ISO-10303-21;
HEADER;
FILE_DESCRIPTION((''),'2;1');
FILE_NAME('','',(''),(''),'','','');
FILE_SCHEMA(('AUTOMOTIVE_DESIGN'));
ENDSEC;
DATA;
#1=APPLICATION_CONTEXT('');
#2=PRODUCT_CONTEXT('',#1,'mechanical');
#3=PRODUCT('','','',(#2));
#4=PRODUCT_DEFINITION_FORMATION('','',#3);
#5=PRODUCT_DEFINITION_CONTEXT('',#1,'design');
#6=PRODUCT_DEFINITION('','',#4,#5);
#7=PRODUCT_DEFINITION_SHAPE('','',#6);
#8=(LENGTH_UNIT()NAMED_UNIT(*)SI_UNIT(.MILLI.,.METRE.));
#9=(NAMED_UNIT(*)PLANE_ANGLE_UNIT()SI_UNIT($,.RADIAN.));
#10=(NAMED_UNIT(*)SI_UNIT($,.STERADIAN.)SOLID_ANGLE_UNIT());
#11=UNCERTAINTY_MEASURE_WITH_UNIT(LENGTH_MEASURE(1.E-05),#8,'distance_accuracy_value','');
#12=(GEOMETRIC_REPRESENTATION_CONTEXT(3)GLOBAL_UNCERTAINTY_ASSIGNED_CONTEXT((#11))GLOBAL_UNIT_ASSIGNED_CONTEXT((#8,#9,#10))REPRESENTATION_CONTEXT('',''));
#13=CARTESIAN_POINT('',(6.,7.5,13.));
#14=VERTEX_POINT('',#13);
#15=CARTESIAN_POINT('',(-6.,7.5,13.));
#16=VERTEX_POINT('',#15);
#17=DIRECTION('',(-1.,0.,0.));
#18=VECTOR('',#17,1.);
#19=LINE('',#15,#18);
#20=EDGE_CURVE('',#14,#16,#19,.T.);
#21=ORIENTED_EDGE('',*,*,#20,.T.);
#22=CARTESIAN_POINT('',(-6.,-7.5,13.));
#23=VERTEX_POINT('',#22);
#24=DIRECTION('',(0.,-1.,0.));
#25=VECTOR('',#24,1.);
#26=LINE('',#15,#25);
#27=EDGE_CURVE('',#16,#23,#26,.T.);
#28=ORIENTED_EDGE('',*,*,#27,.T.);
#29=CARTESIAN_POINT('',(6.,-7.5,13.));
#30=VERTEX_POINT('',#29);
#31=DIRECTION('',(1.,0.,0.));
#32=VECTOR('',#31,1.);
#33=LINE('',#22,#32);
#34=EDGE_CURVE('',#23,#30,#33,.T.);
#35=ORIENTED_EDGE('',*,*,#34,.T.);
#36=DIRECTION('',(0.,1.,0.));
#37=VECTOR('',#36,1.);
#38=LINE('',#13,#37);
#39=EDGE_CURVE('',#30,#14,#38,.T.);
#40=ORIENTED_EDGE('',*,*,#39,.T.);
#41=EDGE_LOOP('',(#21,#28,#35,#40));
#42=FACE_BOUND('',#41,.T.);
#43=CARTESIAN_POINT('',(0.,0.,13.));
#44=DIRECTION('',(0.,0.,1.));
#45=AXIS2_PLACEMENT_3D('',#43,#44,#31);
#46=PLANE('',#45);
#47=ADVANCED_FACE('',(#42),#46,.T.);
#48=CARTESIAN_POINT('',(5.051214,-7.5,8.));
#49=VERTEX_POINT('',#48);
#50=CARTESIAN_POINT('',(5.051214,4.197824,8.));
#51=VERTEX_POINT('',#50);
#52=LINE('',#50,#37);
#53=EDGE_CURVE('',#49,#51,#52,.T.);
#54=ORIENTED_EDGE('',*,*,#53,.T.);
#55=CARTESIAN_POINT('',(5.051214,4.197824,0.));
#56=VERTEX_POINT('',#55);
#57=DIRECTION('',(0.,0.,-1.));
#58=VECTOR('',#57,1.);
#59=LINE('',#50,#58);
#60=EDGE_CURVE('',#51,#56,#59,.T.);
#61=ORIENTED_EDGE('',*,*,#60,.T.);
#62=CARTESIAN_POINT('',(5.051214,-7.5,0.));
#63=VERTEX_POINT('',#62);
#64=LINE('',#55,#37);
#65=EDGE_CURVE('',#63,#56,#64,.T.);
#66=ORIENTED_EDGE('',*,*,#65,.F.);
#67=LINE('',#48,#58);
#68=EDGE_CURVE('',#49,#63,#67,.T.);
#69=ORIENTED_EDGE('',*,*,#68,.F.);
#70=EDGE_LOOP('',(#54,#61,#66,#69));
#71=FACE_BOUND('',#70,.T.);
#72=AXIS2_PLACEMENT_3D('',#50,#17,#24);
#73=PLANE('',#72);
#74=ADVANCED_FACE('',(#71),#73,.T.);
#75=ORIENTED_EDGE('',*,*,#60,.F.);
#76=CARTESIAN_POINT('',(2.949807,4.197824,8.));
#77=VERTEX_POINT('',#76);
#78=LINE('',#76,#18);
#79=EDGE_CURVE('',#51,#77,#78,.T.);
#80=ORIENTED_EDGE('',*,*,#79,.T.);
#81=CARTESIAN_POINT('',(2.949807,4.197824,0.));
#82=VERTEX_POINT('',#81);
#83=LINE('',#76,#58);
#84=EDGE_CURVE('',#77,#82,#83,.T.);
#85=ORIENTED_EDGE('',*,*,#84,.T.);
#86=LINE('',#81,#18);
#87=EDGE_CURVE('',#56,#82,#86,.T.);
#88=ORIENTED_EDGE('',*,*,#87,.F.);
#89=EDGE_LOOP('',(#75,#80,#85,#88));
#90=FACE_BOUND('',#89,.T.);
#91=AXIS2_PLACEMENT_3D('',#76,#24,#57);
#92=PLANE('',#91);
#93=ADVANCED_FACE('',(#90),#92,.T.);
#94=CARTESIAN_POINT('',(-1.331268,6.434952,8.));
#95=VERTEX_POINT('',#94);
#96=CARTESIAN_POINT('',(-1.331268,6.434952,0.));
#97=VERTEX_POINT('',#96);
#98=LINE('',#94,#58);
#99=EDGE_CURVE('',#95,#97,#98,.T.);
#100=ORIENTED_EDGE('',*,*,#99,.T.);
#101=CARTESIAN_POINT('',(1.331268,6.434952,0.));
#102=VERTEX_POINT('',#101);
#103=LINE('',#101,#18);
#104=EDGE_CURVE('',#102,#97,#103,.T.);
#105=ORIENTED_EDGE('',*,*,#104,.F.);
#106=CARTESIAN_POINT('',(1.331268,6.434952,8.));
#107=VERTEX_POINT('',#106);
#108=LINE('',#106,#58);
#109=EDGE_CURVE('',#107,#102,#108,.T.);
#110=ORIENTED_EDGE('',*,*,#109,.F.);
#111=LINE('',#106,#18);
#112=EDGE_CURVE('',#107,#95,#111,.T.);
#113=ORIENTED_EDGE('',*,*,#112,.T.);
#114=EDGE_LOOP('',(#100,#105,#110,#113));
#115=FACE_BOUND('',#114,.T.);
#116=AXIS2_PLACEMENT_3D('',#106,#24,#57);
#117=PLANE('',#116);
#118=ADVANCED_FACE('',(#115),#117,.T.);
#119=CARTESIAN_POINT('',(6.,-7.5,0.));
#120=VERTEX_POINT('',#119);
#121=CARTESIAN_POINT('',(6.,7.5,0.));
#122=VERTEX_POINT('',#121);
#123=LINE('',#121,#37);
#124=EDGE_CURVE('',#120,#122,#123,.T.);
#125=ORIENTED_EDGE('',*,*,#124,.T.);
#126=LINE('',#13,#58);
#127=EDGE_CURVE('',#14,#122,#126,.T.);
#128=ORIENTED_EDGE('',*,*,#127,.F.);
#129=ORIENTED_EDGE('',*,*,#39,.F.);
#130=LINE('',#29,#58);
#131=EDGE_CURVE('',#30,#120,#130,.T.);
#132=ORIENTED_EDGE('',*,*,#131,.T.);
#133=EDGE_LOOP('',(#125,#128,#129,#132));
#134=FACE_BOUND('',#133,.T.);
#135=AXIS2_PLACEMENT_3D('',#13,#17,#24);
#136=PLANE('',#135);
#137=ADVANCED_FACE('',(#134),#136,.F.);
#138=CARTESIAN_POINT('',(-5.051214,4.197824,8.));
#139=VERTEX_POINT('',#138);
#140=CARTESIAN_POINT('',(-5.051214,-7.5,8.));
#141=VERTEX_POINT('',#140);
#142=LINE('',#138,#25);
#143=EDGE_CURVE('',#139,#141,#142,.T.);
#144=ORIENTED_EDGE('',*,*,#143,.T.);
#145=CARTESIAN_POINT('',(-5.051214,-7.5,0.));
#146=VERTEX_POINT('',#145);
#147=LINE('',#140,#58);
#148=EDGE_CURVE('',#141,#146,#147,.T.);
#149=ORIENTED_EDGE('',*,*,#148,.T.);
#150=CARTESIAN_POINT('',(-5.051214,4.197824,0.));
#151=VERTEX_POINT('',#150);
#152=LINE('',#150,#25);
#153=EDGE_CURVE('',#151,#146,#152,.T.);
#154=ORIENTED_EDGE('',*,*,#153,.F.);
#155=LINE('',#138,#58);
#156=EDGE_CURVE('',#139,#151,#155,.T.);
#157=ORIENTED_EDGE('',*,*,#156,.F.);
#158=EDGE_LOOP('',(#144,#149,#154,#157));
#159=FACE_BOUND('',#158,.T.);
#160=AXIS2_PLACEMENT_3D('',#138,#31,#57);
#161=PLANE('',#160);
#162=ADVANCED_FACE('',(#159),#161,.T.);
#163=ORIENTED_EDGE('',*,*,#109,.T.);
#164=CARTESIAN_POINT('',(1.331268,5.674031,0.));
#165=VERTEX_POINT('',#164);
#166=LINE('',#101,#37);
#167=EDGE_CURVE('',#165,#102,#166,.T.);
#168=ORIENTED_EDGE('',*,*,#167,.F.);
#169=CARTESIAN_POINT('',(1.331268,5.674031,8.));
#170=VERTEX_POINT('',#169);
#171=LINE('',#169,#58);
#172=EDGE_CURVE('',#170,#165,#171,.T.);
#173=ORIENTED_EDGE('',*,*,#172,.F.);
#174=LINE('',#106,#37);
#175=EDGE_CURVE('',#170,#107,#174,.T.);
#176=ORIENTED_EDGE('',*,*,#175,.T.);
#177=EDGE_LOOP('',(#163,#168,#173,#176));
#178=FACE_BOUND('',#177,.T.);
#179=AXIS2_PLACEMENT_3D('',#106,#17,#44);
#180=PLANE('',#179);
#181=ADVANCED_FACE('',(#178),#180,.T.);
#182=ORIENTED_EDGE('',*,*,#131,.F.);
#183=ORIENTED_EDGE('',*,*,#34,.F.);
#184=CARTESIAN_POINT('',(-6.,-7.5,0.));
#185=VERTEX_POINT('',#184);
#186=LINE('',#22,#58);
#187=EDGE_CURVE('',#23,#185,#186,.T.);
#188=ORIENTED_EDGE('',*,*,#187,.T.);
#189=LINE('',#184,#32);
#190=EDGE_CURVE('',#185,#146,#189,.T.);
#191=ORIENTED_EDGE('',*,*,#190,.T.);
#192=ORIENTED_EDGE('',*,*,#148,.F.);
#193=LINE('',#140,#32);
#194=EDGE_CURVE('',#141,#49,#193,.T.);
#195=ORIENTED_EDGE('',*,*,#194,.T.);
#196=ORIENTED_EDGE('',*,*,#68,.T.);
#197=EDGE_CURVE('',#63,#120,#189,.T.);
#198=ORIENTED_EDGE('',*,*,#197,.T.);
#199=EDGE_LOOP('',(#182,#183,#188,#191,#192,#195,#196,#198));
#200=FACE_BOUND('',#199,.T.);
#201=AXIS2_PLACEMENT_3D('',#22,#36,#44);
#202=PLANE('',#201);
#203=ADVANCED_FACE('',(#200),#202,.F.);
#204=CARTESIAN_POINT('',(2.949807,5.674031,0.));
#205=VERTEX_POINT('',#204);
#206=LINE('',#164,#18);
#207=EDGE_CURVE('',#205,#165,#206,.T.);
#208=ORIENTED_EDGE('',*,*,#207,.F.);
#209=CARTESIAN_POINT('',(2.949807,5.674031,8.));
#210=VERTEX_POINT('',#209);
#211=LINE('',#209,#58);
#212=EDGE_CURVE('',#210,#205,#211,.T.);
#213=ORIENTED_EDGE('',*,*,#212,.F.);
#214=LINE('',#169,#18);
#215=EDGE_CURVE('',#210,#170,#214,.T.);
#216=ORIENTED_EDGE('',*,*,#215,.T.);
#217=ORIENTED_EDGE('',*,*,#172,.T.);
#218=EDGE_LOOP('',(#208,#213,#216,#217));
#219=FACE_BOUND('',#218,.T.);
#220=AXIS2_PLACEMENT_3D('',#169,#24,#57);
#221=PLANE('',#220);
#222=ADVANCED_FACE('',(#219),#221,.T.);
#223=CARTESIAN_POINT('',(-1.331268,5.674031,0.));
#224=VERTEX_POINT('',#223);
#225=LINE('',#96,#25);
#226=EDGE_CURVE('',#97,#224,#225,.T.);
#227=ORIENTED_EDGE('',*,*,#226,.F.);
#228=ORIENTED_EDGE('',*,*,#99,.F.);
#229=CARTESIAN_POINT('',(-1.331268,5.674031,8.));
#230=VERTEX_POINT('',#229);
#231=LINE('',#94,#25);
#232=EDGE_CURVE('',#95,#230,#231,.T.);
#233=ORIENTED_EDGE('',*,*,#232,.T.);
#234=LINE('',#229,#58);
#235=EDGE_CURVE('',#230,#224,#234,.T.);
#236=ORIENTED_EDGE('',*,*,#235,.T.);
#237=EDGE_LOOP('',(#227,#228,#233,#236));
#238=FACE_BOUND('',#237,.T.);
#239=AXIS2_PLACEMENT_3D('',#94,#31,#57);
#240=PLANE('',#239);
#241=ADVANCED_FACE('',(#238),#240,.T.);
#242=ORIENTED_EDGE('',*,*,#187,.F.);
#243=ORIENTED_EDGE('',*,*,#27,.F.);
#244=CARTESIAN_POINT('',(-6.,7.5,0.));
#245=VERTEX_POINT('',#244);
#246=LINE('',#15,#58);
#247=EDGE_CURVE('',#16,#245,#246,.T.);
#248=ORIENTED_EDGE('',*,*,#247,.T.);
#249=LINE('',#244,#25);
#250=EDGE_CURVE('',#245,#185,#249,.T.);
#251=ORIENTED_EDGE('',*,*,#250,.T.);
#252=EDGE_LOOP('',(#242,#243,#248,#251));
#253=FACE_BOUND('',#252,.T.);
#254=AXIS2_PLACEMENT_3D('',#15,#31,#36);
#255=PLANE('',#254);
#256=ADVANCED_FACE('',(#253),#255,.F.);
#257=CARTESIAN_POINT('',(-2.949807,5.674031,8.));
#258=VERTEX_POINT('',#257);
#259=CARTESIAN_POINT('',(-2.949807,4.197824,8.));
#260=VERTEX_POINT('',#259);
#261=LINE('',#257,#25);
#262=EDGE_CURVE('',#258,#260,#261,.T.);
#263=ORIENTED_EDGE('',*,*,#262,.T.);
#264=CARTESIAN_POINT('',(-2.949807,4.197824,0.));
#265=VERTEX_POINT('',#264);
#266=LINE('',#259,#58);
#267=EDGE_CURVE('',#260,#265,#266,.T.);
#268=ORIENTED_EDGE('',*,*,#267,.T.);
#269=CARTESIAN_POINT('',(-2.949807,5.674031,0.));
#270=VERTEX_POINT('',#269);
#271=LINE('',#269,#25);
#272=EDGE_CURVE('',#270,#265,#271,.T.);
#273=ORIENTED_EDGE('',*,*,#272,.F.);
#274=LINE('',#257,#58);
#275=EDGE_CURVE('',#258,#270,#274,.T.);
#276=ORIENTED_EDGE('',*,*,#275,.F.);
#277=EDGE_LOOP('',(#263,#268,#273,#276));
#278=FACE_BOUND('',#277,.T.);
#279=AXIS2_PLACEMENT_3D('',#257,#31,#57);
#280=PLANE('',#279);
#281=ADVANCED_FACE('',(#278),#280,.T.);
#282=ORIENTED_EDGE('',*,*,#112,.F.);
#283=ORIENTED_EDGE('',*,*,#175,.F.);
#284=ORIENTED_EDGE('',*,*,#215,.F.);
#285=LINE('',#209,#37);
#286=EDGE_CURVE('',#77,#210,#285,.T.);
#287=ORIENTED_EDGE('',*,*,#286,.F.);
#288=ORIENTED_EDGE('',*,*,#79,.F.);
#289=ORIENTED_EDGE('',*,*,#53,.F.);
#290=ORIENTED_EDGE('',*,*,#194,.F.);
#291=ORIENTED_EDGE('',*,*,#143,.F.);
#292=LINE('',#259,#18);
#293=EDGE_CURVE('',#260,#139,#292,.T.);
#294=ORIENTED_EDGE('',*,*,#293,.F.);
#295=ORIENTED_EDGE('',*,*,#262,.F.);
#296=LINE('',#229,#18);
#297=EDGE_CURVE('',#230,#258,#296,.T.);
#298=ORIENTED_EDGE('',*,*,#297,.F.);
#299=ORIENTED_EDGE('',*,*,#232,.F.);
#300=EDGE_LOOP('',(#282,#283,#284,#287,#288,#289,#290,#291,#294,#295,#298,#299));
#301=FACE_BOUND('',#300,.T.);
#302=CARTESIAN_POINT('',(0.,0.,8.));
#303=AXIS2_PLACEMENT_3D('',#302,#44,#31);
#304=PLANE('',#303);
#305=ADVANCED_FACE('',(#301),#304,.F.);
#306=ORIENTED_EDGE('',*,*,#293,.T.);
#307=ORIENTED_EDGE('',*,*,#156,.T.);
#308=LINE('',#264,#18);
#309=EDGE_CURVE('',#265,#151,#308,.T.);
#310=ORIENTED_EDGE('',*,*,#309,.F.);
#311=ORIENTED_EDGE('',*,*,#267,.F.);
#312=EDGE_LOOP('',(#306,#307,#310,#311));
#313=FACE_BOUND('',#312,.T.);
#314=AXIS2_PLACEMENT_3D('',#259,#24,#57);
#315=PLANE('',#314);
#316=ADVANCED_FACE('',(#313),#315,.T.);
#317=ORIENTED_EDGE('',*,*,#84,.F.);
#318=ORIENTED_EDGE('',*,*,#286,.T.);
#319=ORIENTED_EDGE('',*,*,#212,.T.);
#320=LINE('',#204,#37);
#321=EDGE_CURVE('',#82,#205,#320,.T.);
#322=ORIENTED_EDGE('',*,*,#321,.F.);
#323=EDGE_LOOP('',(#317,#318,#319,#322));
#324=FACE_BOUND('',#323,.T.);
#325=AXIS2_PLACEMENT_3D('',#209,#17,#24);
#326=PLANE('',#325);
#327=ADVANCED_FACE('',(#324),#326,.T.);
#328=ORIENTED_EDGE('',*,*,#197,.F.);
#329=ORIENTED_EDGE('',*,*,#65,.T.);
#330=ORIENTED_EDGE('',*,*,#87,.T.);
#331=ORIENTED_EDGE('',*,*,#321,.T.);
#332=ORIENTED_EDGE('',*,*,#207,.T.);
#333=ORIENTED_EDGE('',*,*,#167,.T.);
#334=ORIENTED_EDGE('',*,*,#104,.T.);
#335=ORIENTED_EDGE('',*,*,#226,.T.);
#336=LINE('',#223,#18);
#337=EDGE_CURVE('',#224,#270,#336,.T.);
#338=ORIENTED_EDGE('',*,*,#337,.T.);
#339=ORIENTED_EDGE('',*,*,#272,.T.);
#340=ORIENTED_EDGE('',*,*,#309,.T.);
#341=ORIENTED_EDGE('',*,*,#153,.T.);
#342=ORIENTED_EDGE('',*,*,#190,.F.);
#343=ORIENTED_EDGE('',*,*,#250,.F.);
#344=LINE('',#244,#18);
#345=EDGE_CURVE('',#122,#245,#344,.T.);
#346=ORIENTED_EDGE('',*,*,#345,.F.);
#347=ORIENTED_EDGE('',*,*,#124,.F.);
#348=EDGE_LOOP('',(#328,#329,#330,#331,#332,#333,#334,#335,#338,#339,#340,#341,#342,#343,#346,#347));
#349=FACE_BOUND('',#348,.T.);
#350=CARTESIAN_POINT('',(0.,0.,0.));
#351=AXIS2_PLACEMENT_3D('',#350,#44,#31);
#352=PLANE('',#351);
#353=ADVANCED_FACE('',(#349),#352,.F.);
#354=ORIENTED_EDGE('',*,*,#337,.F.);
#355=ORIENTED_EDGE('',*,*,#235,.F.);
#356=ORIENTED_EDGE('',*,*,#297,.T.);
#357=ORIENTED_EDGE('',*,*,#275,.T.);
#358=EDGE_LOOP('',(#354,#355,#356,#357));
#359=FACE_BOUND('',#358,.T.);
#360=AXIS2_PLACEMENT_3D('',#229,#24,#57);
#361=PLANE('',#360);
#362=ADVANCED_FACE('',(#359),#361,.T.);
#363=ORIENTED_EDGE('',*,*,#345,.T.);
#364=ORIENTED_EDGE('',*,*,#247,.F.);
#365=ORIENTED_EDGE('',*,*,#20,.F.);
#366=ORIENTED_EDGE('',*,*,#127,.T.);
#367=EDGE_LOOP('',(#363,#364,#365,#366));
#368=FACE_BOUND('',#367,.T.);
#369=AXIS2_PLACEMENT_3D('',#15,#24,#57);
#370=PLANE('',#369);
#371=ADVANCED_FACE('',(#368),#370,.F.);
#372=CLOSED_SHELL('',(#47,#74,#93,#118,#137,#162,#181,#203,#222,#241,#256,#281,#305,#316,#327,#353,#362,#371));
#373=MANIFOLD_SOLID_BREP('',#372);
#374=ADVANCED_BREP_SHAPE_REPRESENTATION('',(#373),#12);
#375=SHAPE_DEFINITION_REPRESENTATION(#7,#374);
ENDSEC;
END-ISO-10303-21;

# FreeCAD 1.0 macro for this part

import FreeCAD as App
import Part
import Sketcher
from FreeCAD import Vector


def add_polygon(sketch, points):
    """Adds a closed chain of lines whose ends are joined by coincident constraints."""
    first, n = sketch.GeometryCount, len(points)
    for a, b in zip(points, points[1:] + points[:1]):
        sketch.addGeometry(Part.LineSegment(App.Vector(*a, 0), App.Vector(*b, 0)), False)
    for i in range(n):
        sketch.addConstraint(Sketcher.Constraint("Coincident", first + i, 2, first + (i + 1) % n, 1))

doc = App.newDocument("Part")
body = doc.addObject("PartDesign::Body", "Body")

sketch1 = body.newObject("Sketcher::SketchObject", "Sketch")
sketch1.AttachmentSupport = (doc.getObject("XY_Plane"), [""])
sketch1.MapMode = "FlatFace"
add_polygon(sketch1, [(-6, 7.5), (-6, -7.5), (6, -7.5), (6, 7.5)])
sketch1.addConstraint(Sketcher.Constraint("Vertical", 0))
sketch1.addConstraint(Sketcher.Constraint("Horizontal", 1))
sketch1.addConstraint(Sketcher.Constraint("Vertical", 2))
sketch1.addConstraint(Sketcher.Constraint("Horizontal", 3))
sketch1.addConstraint(Sketcher.Constraint("Symmetric", 0, 2, 2, 2, -1, 1))
sketch1.addConstraint(Sketcher.Constraint("DistanceX", 1, 1, 1, 2, 12.0))
sketch1.addConstraint(Sketcher.Constraint("DistanceY", 0, 2, 0, 1, 15.0))
pad1 = body.newObject("PartDesign::Pad", "Pad")
pad1.Profile = sketch1
pad1.Length = 13

sketch2 = body.newObject("Sketcher::SketchObject", "Sketch001")
sketch2.AttachmentSupport = (doc.getObject("XY_Plane"), [""])
sketch2.MapMode = "FlatFace"
add_polygon(sketch2, [(1.331268, 6.434952), (-1.331268, 6.434952), (-1.331268, 5.674031), (-2.949807, 5.674031), (-2.949807, 4.197824), (-5.051214, 4.197824), (-5.051214, -7.5), (5.051214, -7.5), (5.051214, 4.197824), (2.949807, 4.197824), (2.949807, 5.674031), (1.331268, 5.674031)])
sketch2.addConstraint(Sketcher.Constraint("Horizontal", 0))
sketch2.addConstraint(Sketcher.Constraint("Vertical", 1))
sketch2.addConstraint(Sketcher.Constraint("Horizontal", 2))
sketch2.addConstraint(Sketcher.Constraint("Vertical", 3))
sketch2.addConstraint(Sketcher.Constraint("Horizontal", 4))
sketch2.addConstraint(Sketcher.Constraint("Vertical", 5))
sketch2.addConstraint(Sketcher.Constraint("Horizontal", 6))
sketch2.addConstraint(Sketcher.Constraint("Vertical", 7))
sketch2.addConstraint(Sketcher.Constraint("Horizontal", 8))
sketch2.addConstraint(Sketcher.Constraint("Vertical", 9))
sketch2.addConstraint(Sketcher.Constraint("Horizontal", 10))
sketch2.addConstraint(Sketcher.Constraint("Vertical", 11))
sketch2.addConstraint(Sketcher.Constraint("Symmetric", 4, 2, 7, 2, -2))
sketch2.addConstraint(Sketcher.Constraint("Symmetric", 2, 2, 9, 2, -2))
sketch2.addConstraint(Sketcher.Constraint("Equal", 2, 10))
sketch2.addConstraint(Sketcher.Constraint("DistanceY", 5, 2, -1, 1, 7.5))
sketch2.addConstraint(Sketcher.Constraint("DistanceX", 2, 2, 2, 1, 1.618538))
sketch2.addConstraint(Sketcher.Constraint("DistanceX", 6, 1, 6, 2, 10.102429))
sketch2.addConstraint(Sketcher.Constraint("DistanceY", 1, 2, 1, 1, 0.760921))
sketch2.addConstraint(Sketcher.Constraint("DistanceX", 0, 2, 0, 1, 2.662537))
sketch2.addConstraint(Sketcher.Constraint("DistanceY", 3, 2, 3, 1, 1.476207))
sketch2.addConstraint(Sketcher.Constraint("DistanceY", 5, 2, 5, 1, 11.697824))
pocket1 = body.newObject("PartDesign::Pocket", "Pocket")
pocket1.Profile = sketch2
pocket1.Length = 8
pocket1.Reversed = True

doc.recompute()
